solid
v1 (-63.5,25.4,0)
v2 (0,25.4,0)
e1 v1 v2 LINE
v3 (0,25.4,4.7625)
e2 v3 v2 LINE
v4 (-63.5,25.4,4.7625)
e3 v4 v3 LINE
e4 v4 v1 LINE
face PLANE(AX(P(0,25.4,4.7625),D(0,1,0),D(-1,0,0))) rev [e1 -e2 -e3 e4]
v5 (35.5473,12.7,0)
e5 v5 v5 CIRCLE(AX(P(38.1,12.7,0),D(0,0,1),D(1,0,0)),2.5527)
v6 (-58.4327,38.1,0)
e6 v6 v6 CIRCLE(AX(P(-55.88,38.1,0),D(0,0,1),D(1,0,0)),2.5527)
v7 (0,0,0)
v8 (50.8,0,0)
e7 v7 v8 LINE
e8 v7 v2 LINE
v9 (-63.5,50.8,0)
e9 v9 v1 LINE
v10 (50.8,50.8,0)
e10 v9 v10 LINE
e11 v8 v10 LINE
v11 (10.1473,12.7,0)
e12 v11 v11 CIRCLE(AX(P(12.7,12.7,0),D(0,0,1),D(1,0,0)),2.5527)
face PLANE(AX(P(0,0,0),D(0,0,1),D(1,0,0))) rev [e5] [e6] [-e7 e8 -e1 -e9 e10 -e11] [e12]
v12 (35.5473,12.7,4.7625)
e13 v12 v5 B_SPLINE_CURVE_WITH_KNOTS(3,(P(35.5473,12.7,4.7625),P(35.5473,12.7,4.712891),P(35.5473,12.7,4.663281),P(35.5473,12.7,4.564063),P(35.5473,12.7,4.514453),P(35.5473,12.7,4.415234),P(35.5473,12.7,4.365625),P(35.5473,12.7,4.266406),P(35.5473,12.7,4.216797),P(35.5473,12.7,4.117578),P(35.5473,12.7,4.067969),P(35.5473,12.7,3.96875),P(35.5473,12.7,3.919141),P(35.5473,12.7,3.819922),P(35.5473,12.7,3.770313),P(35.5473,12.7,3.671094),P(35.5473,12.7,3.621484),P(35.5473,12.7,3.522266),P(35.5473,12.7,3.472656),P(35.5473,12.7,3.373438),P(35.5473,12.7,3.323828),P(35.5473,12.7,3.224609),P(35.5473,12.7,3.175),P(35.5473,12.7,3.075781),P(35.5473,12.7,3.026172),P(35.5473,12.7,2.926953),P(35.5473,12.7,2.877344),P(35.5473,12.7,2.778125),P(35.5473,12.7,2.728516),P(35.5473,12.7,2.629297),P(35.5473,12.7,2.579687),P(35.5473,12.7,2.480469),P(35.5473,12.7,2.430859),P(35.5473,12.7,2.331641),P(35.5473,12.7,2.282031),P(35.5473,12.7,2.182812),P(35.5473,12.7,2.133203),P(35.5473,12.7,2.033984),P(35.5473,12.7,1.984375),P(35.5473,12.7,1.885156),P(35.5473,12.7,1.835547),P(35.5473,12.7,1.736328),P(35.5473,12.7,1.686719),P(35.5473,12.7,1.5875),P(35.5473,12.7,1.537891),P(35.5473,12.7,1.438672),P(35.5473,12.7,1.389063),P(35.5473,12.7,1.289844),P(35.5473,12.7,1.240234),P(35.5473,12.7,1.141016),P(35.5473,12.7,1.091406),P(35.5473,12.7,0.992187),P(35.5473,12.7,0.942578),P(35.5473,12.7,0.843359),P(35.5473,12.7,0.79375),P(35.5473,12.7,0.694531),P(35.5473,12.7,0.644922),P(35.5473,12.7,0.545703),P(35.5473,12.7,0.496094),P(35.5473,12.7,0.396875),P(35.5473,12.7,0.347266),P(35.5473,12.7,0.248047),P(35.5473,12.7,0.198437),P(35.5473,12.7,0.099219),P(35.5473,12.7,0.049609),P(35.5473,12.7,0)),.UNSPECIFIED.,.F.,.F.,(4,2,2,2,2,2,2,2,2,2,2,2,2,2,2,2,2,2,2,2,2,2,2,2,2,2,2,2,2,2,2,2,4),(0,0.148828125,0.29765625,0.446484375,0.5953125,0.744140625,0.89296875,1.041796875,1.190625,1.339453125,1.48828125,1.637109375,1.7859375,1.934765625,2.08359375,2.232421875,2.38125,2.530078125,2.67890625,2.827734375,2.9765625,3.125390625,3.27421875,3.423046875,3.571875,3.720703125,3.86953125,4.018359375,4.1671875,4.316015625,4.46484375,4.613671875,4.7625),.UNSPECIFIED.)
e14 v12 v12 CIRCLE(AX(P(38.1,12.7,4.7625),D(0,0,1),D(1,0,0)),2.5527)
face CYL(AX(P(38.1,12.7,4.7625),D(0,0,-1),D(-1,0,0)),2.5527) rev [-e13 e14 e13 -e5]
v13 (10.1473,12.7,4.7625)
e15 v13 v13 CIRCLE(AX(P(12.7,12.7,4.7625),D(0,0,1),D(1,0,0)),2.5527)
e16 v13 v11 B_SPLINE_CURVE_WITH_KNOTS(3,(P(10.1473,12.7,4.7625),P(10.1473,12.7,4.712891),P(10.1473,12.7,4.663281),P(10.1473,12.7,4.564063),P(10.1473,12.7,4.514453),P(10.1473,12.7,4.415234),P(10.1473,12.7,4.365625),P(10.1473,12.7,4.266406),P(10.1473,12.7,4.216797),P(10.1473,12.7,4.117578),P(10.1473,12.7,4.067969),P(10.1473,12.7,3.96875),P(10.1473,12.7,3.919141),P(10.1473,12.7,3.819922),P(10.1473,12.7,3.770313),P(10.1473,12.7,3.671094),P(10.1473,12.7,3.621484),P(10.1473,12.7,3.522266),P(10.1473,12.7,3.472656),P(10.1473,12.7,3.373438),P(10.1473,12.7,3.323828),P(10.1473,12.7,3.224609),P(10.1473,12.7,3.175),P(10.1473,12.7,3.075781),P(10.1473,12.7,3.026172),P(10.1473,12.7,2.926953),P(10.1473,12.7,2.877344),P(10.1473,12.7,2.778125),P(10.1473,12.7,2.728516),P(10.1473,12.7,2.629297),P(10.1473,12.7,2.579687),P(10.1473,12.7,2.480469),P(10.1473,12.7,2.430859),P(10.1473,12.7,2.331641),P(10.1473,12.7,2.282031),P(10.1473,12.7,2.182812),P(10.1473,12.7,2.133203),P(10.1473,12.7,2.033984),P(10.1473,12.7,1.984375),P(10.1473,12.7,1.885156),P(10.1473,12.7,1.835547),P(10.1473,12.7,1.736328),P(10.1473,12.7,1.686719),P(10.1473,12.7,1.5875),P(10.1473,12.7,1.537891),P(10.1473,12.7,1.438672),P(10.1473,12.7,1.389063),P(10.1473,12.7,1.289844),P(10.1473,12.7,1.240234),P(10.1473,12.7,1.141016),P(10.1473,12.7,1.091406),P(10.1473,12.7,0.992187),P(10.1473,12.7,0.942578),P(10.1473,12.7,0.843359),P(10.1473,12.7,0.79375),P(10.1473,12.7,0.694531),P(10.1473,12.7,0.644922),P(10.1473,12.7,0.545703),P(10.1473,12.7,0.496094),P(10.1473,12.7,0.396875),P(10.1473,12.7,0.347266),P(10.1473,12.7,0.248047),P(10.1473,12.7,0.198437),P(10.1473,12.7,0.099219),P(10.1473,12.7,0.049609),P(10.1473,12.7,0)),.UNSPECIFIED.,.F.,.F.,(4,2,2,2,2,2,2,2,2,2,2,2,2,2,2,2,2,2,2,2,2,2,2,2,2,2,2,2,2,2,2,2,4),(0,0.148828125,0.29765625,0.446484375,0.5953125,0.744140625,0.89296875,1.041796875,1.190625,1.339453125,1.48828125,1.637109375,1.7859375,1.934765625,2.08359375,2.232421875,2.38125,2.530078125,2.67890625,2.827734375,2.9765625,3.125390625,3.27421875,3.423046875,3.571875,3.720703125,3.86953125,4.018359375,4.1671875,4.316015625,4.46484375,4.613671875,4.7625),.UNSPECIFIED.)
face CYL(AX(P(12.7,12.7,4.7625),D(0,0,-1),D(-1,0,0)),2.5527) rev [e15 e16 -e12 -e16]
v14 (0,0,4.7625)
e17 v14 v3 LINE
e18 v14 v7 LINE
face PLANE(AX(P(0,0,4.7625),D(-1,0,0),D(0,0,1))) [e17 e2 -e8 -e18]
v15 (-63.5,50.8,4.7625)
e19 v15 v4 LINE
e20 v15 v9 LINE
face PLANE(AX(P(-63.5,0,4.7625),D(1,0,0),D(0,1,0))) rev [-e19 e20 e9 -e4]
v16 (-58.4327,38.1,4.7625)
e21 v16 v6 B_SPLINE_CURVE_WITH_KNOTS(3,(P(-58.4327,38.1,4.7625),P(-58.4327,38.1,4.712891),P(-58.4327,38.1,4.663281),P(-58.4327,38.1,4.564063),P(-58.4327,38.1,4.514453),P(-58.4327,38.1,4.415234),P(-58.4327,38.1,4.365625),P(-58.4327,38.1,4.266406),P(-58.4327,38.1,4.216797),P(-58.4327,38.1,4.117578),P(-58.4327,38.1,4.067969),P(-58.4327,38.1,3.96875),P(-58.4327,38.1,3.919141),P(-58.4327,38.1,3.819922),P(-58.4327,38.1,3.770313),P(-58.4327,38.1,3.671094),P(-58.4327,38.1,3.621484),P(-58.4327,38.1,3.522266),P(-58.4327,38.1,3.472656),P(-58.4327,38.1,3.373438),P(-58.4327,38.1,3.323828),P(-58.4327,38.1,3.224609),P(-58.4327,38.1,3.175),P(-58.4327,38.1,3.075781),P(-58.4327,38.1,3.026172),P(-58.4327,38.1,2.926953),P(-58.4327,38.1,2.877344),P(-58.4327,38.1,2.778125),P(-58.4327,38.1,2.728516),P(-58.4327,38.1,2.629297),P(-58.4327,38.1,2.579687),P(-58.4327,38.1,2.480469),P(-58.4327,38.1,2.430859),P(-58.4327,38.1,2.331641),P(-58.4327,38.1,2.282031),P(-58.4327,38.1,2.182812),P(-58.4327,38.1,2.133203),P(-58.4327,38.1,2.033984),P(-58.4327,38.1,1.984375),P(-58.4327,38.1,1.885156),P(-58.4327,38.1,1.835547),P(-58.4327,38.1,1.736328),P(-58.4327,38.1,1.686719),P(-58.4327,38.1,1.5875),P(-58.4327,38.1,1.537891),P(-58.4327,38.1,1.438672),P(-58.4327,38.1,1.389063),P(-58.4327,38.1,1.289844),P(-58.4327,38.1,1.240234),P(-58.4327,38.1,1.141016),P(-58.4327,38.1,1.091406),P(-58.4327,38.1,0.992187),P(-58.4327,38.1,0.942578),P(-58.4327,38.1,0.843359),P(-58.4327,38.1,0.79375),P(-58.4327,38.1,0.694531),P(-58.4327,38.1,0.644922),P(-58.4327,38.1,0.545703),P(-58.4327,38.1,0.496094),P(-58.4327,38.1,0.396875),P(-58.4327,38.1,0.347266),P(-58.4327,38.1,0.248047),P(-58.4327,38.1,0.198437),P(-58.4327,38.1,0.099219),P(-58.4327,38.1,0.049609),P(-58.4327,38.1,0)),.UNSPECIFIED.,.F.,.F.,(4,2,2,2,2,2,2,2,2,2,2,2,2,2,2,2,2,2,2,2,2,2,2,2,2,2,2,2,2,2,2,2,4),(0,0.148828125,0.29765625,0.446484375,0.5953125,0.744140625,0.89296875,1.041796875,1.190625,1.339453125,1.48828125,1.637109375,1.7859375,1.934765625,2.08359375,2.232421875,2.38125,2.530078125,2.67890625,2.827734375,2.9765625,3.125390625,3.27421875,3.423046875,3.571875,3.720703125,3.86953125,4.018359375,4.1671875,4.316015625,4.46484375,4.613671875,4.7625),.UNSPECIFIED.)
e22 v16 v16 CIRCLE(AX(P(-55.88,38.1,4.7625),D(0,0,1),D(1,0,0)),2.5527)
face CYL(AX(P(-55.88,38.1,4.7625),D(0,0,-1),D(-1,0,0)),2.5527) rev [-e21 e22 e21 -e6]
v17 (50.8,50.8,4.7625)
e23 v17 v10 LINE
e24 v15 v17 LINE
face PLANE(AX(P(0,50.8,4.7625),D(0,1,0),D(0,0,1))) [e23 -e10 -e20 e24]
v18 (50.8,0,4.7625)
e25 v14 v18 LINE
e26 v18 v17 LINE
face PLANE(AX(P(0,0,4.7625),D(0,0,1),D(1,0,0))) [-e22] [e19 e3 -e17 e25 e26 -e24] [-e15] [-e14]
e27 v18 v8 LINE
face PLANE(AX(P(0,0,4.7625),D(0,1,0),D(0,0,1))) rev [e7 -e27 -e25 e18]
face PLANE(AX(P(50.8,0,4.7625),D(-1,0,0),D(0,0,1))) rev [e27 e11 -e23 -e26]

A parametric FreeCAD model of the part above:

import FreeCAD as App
import Part
import Sketcher
from FreeCAD import Vector
Q = App.Units.Quantity


def add_polygon(sketch, points):
    """Adds a closed chain of lines whose ends are joined by coincident constraints."""
    first, n = sketch.GeometryCount, len(points)
    for a, b in zip(points, points[1:] + points[:1]):
        sketch.addGeometry(Part.LineSegment(App.Vector(*a, 0), App.Vector(*b, 0)), False)
    for i in range(n):
        sketch.addConstraint(Sketcher.Constraint("Coincident", first + i, 2, first + (i + 1) % n, 1))

doc = App.newDocument("Part")
body = doc.addObject("PartDesign::Body", "Body")

sketch1 = body.newObject("Sketcher::SketchObject", "Sketch")
sketch1.AttachmentSupport = (doc.getObject("XY_Plane"), [""])
sketch1.MapMode = "FlatFace"
add_polygon(sketch1, [(0, 25.4), (0, 0), (50.8, 0), (50.8, 50.8), (-63.5, 50.8), (-63.5, 25.4)])
sketch1.addGeometry(Part.Circle(Vector(12.7, 12.7, 0), Vector(0, 0, 1), 2.5527), False)
sketch1.addGeometry(Part.Circle(Vector(38.1, 12.7, 0), Vector(0, 0, 1), 2.5527), False)
sketch1.addGeometry(Part.Circle(Vector(-55.88, 38.1, 0), Vector(0, 0, 1), 2.5527), False)
sketch1.addConstraint(Sketcher.Constraint("Vertical", 0))
sketch1.addConstraint(Sketcher.Constraint("Horizontal", 1))
sketch1.addConstraint(Sketcher.Constraint("Vertical", 2))
sketch1.addConstraint(Sketcher.Constraint("Horizontal", 3))
sketch1.addConstraint(Sketcher.Constraint("Vertical", 4))
sketch1.addConstraint(Sketcher.Constraint("Horizontal", 5))
sketch1.addConstraint(Sketcher.Constraint("Coincident", 0, 2, -1, 1))
sketch1.addConstraint(Sketcher.Constraint("Equal", 6, 7))
sketch1.addConstraint(Sketcher.Constraint("Equal", 7, 8))
sketch1.addConstraint(Sketcher.Constraint("Horizontal", 6, 3, 7, 3))
sketch1.addConstraint(Sketcher.Constraint("Equal", 1, 2))
sketch1.addConstraint(Sketcher.Constraint("Equal", 0, 4))
sketch1.addConstraint(Sketcher.Constraint("DistanceX", 1, 1, 1, 2, Q("2 in")))
sketch1.addConstraint(Sketcher.Constraint("Diameter", 6, Q("0.201 in")))
sketch1.addConstraint(Sketcher.Constraint("DistanceX", 3, 2, 3, 1, Q("4.5 in")))
sketch1.addConstraint(Sketcher.Constraint("DistanceX", 6, 3, 7, 3, Q("1 in")))
sketch1.addConstraint(Sketcher.Constraint("DistanceY", 6, 3, 8, 3, Q("1 in")))
sketch1.addConstraint(Sketcher.Constraint("DistanceX", 3, 2, 6, 3, Q("3 in")))
sketch1.addConstraint(Sketcher.Constraint("DistanceY", -1, 1, 6, 3, Q("0.5 in")))
sketch1.addConstraint(Sketcher.Constraint("DistanceX", 8, 3, -1, 1, Q("2.2 in")))
pad1 = body.newObject("PartDesign::Pad", "Pad")
pad1.Profile = sketch1
pad1.Length = Q("0.1875 in")

doc.recompute()
